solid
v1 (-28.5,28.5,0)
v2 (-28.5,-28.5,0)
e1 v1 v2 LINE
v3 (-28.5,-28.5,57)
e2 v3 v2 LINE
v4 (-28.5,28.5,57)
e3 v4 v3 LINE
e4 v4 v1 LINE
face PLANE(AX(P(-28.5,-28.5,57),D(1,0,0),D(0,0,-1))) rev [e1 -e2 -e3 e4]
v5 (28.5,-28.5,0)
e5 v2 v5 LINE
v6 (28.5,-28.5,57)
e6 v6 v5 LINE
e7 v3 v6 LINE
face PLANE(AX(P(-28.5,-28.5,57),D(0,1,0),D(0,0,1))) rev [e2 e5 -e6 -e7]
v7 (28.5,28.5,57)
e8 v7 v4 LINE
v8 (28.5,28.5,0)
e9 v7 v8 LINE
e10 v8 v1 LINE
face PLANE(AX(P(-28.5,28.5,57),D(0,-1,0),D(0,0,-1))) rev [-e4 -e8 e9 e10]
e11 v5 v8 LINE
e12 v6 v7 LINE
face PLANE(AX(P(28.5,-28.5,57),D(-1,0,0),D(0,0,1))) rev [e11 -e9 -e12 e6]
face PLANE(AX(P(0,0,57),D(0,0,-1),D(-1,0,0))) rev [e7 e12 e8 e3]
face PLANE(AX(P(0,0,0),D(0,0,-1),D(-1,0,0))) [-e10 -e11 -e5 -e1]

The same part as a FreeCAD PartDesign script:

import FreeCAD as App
import Part
import Sketcher
Q = App.Units.Quantity

doc = App.newDocument("Part")
params = doc.addObject("Spreadsheet::Sheet", "Params")
for row, (alias, value) in enumerate([
    ("sketch1_width", "57 mm"),
    ("pad1_length", "57 mm"),
], start=1):
    params.set(f"A{row}", alias)
    params.set(f"B{row}", "=" + value)
    params.setAlias(f"B{row}", alias)

body = doc.addObject("PartDesign::Body", "Body")

# Sketch on XY plane
sketch1 = body.newObject("Sketcher::SketchObject", "Sketch")
sketch1.AttachmentSupport = (doc.getObject("XY_Plane"), [""])
sketch1.MapMode = "FlatFace"
sketch1.addGeometry([
    Part.LineSegment(App.Vector(-28, 28, 0), App.Vector(-28, -28, 0)),
    Part.LineSegment(App.Vector(-28, -28, 0), App.Vector(28, -28, 0)),
    Part.LineSegment(App.Vector(28, -28, 0), App.Vector(28, 28, 0)),
    Part.LineSegment(App.Vector(28, 28, 0), App.Vector(-28, 28, 0)),
], False)
sketch1.addConstraint([
    Sketcher.Constraint("Coincident", 0, 2, 1, 1),
    Sketcher.Constraint("Coincident", 1, 2, 2, 1),
    Sketcher.Constraint("Coincident", 2, 2, 3, 1),
    Sketcher.Constraint("Coincident", 3, 2, 0, 1),
    Sketcher.Constraint("Vertical", 0),
    Sketcher.Constraint("Horizontal", 1),
    Sketcher.Constraint("Vertical", 2),
    Sketcher.Constraint("Horizontal", 3),
    Sketcher.Constraint("Symmetric", 0, 2, 2, 2, -1, 1),
    Sketcher.Constraint("Equal", 3, 0),
    Sketcher.Constraint("DistanceX", 1, 1, 1, 2, Q("57 mm")),
])
sketch1.setExpression("Constraints[10]", "Params.sketch1_width")
pad1 = body.newObject("PartDesign::Pad", "Pad")
pad1.Profile = sketch1
pad1.setExpression("Length", "Params.pad1_length")

doc.recompute()
